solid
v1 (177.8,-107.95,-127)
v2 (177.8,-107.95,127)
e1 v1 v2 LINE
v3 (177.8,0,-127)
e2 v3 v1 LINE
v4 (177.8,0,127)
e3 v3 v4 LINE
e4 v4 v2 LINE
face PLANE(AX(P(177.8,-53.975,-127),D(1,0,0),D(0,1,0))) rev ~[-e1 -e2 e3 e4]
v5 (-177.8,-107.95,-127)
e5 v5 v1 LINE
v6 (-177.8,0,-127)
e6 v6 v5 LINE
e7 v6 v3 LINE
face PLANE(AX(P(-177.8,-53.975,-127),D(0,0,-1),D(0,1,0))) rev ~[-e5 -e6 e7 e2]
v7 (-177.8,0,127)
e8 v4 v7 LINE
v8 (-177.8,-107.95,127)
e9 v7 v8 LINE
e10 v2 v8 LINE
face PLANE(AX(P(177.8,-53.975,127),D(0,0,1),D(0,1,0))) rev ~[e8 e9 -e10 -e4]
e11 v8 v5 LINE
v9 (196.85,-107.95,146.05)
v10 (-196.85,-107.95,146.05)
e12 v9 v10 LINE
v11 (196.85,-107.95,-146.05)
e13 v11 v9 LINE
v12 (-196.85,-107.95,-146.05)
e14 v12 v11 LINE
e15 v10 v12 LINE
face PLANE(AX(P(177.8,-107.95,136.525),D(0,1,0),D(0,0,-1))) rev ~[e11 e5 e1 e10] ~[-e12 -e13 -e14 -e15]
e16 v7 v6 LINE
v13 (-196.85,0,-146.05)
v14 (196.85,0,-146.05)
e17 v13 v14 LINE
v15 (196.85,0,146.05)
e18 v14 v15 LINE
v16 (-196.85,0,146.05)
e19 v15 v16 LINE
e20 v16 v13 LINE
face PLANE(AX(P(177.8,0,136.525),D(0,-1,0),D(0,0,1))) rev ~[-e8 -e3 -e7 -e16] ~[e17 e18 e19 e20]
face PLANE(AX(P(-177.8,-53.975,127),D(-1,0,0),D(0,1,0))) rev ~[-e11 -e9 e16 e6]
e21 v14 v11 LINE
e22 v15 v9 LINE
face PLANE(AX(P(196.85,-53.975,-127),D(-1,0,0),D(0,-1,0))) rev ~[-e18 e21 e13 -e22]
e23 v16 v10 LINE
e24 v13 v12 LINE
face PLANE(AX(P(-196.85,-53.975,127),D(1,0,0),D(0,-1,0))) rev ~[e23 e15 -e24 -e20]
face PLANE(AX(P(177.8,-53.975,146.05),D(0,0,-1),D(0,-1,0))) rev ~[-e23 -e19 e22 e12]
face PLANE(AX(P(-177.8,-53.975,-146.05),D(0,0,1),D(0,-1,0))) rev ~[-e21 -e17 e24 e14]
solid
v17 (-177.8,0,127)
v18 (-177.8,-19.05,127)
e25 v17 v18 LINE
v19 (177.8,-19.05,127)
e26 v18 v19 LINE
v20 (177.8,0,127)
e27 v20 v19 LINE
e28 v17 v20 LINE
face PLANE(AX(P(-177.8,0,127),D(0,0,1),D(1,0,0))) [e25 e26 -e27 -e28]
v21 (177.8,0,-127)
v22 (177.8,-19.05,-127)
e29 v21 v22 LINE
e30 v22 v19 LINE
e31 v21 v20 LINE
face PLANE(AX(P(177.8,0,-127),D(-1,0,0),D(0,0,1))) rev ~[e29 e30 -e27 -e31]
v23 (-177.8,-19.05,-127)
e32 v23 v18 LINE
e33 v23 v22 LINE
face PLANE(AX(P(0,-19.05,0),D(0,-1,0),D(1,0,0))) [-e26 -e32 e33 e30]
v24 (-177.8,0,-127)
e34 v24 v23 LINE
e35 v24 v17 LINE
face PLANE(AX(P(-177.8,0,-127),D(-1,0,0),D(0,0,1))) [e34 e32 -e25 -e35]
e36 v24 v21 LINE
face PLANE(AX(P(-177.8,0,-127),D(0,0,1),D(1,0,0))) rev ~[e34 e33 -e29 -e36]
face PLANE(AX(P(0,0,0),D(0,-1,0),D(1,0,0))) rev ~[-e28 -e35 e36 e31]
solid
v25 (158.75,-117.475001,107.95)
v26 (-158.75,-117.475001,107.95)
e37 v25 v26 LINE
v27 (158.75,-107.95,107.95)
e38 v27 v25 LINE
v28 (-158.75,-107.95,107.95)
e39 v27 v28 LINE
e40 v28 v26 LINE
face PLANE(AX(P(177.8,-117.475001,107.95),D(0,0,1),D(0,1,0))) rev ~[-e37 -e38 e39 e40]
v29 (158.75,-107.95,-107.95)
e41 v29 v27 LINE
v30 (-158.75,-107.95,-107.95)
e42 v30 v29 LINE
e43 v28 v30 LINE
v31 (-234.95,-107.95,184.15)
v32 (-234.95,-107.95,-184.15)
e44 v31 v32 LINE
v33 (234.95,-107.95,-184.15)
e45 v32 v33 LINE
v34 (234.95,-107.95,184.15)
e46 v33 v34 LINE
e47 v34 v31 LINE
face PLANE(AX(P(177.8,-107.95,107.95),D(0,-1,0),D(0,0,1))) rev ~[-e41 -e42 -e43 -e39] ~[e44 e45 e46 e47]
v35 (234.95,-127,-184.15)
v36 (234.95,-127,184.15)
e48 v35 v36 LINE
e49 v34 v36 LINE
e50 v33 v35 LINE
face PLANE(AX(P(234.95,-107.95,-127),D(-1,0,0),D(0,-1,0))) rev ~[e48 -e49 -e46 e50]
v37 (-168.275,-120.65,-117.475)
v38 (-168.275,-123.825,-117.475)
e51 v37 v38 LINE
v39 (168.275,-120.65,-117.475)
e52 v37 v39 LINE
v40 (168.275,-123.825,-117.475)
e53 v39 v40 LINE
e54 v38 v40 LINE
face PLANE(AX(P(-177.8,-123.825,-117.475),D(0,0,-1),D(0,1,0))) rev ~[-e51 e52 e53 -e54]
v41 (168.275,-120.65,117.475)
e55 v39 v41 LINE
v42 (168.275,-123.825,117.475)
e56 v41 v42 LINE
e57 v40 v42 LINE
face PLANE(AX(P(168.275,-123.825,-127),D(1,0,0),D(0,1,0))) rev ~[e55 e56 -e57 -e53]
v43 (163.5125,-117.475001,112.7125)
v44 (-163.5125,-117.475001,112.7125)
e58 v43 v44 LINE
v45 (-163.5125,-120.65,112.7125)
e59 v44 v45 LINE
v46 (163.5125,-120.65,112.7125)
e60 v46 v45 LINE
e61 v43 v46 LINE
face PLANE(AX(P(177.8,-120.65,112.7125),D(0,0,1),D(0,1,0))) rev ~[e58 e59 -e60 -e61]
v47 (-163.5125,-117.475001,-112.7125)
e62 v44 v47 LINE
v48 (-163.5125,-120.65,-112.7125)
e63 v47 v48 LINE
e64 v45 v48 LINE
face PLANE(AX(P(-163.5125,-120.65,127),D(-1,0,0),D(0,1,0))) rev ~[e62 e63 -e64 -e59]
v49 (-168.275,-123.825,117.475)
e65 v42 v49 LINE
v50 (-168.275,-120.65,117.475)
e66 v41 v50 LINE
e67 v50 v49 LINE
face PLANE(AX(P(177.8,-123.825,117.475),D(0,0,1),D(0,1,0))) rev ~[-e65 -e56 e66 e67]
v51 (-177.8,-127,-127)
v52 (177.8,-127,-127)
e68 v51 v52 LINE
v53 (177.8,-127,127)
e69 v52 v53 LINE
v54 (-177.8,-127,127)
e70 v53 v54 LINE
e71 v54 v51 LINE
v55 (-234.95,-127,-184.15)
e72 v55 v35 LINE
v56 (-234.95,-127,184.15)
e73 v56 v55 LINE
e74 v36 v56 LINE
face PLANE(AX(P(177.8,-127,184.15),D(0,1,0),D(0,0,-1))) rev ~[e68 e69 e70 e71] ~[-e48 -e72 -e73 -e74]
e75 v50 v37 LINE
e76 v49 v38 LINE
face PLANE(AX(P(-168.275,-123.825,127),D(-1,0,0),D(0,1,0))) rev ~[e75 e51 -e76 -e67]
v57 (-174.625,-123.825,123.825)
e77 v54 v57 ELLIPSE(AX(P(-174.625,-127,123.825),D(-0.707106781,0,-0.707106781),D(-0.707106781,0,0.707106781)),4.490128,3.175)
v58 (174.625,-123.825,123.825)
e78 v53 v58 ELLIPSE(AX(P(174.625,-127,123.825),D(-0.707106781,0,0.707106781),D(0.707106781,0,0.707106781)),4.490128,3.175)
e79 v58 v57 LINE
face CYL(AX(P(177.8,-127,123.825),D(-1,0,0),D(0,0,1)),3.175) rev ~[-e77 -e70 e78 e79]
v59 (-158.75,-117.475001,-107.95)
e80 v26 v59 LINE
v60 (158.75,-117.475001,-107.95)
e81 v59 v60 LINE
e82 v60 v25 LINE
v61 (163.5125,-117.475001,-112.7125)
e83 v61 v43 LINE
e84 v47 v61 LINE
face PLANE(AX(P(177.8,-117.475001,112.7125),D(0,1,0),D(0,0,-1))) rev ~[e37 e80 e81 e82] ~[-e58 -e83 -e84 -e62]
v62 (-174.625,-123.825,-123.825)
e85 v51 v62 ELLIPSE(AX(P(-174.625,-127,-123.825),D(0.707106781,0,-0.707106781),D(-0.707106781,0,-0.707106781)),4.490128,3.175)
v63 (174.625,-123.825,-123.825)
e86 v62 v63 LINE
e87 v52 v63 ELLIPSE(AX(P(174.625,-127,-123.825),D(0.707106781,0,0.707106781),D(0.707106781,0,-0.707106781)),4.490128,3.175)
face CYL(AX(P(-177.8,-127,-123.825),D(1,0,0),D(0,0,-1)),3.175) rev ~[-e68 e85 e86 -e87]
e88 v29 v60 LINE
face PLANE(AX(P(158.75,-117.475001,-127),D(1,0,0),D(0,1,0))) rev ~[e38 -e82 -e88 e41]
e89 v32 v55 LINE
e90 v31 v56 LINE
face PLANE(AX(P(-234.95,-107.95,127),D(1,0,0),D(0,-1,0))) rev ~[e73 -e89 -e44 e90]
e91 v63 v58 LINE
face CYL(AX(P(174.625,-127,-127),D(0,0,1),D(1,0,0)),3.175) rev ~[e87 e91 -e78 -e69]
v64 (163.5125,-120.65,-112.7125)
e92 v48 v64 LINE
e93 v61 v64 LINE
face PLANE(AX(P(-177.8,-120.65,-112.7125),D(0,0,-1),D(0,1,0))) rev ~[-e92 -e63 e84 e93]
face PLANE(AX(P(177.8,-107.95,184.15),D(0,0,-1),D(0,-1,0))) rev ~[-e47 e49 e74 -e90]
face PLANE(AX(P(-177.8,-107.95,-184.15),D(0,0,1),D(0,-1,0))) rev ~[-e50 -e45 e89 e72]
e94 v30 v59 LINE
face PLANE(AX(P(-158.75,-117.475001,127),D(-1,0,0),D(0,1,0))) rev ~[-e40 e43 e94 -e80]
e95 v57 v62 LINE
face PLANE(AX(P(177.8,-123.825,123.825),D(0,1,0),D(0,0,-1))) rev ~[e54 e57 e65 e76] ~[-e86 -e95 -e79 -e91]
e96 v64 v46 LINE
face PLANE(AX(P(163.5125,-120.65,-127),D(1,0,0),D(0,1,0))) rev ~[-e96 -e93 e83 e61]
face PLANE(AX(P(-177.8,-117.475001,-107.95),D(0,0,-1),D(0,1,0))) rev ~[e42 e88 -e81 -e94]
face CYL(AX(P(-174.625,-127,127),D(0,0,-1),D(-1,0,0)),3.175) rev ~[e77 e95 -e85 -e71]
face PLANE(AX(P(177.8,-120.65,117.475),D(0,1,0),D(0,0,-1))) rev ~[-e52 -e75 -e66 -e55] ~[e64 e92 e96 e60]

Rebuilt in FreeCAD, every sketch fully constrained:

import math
import FreeCAD as App
import Part
import Sketcher

V = App.Vector
Q = App.Units.Quantity


def add_polygon(sketch, points):
    """Adds a closed chain of lines whose ends are joined by coincident constraints."""
    first, n = sketch.GeometryCount, len(points)
    for a, b in zip(points, points[1:] + points[:1]):
        sketch.addGeometry(Part.LineSegment(App.Vector(*a, 0), App.Vector(*b, 0)), False)
    for i in range(n):
        sketch.addConstraint(Sketcher.Constraint("Coincident", first + i, 2, first + (i + 1) % n, 1))

doc = App.newDocument("Part")
params = doc.addObject("Spreadsheet::Sheet", "Params")
for row, (alias, value) in enumerate([
    ("sketch1_width", "14 in"),
    ("sketch1_height", "10 in"),
    ("pad1_length", "0.75 in"),
    ("sketch2_width", "4.25 in"),
    ("sketch2_height", "0.75 in"),
    ("sketch3_width", "14 in"),
    ("sketch3_height", "10 in"),
    ("sketch4_height", "3 in"),
    ("sketch4_radius", "0.125 in"),
    ("sketch4_width", "0.75 in"),
    ("sketch4_height2", "2.25 in"),
    ("sketch4_height3", "0.25 in"),
    ("sketch5_width", "14 in"),
    ("sketch5_height", "10 in"),
], start=1):
    params.set(f"A{row}", alias)
    params.set(f"B{row}", "=" + value)
    params.setAlias(f"B{row}", alias)

body = doc.addObject("PartDesign::Body", "Body")

# Sketch on XZ plane
sketch1 = body.newObject("Sketcher::SketchObject", "Sketch")
sketch1.AttachmentSupport = (doc.getObject("XZ_Plane"), [""])
sketch1.MapMode = "FlatFace"
add_polygon(sketch1, [(-178, 127), (-178, -127), (178, -127), (178, 127)])  # lines 0-3
sketch1.addConstraint(Sketcher.Constraint("Vertical", 0))
sketch1.addConstraint(Sketcher.Constraint("Horizontal", 1))
sketch1.addConstraint(Sketcher.Constraint("Vertical", 2))
sketch1.addConstraint(Sketcher.Constraint("Horizontal", 3))
sketch1.addConstraint(Sketcher.Constraint("Symmetric", 0, 2, 2, 2, -1, 1))
sketch1.addConstraint(Sketcher.Constraint("DistanceX", 1, 1, 1, 2, Q("14 in")))
sketch1.addConstraint(Sketcher.Constraint("DistanceY", 0, 2, 0, 1, Q("10 in")))
sketch1.setExpression("Constraints[9]", "Params.sketch1_width")
sketch1.setExpression("Constraints[10]", "Params.sketch1_height")
pad1 = body.newObject("PartDesign::Pad", "Pad")
pad1.Profile = sketch1
pad1.setExpression("Length", "Params.pad1_length")
body2 = doc.addObject("PartDesign::Body", "Body001")

# Sketch on YZ plane
sketch2 = body2.newObject("Sketcher::SketchObject", "Sketch001")
sketch2.AttachmentSupport = (doc.getObject("YZ_Plane001"), [""])
sketch2.MapMode = "FlatFace"
add_polygon(sketch2, [(-108, 146), (-108, 127), (0, 127), (0, 146)])  # lines 0-3
sketch2.addConstraint(Sketcher.Constraint("Vertical", 0))
sketch2.addConstraint(Sketcher.Constraint("Horizontal", 1))
sketch2.addConstraint(Sketcher.Constraint("Vertical", 2))
sketch2.addConstraint(Sketcher.Constraint("Horizontal", 3))
sketch2.addConstraint(Sketcher.Constraint("PointOnObject", 1, 2, -2))
sketch2.addConstraint(Sketcher.Constraint("DistanceY", -1, 1, 0, 2, Q("5 in")))
sketch2.addConstraint(Sketcher.Constraint("DistanceX", 1, 1, 1, 2, Q("4.25 in")))
sketch2.addConstraint(Sketcher.Constraint("DistanceY", 0, 2, 0, 1, Q("0.75 in")))
sketch2.setExpression("Constraints[10]", "Params.sketch2_width")
sketch2.setExpression("Constraints[11]", "Params.sketch2_height")

# Sketch on XZ plane
sketch3 = body2.newObject("Sketcher::SketchObject", "Sketch002")
sketch3.AttachmentSupport = (doc.getObject("XZ_Plane001"), [""])
sketch3.MapMode = "FlatFace"
add_polygon(sketch3, [(178, 127), (-178, 127), (-178, -127), (178, -127)])  # lines 0-3
sketch3.addConstraint(Sketcher.Constraint("Horizontal", 0))
sketch3.addConstraint(Sketcher.Constraint("Vertical", 1))
sketch3.addConstraint(Sketcher.Constraint("Horizontal", 2))
sketch3.addConstraint(Sketcher.Constraint("Vertical", 3))
sketch3.addConstraint(Sketcher.Constraint("Symmetric", 0, 2, 2, 2, -1, 1))
sketch3.addConstraint(Sketcher.Constraint("DistanceX", 0, 2, 0, 1, Q("14 in")))
sketch3.addConstraint(Sketcher.Constraint("DistanceY", 1, 2, 1, 1, Q("10 in")))
sketch3.setExpression("Constraints[9]", "Params.sketch3_width")
sketch3.setExpression("Constraints[10]", "Params.sketch3_height")
doc.recompute()

additivepipe = body2.newObject("PartDesign::AdditivePipe", "AdditivePipe")
additivepipe.Profile = sketch2
additivepipe.Spine = (sketch3, ["Edge1", "Edge2", "Edge3", "Edge4"])
additivepipe.Transition = "Right corner"
body3 = doc.addObject("PartDesign::Body", "Body002")

# Sketch on YZ plane
sketch4 = body3.newObject("Sketcher::SketchObject", "Sketch003")
sketch4.AttachmentSupport = (doc.getObject("YZ_Plane002"), [""])
sketch4.MapMode = "FlatFace"
sketch4.addGeometry(Part.LineSegment(V(-108, 184.2, 0), V(-127, 184.2, 0)), False)
sketch4.addGeometry(Part.LineSegment(V(-127, 184.2, 0), V(-127, 127, 0)), False)
sketch4.addGeometry(Part.ArcOfCircle(Part.Circle(V(-127, 123.8, 0), V(0, 0, 1), 3.2), math.radians(0), math.radians(90)), False)
sketch4.addGeometry(Part.LineSegment(V(-123.8, 123.8, 0), V(-123.8, 117.5, 0)), False)
sketch4.addGeometry(Part.LineSegment(V(-123.8, 117.5, 0), V(-120.7, 117.5, 0)), False)
sketch4.addGeometry(Part.LineSegment(V(-120.7, 117.5, 0), V(-120.7, 112.7, 0)), False)
sketch4.addGeometry(Part.LineSegment(V(-120.7, 112.7, 0), V(-117.5, 112.7, 0)), False)
sketch4.addGeometry(Part.LineSegment(V(-117.5, 112.7, 0), V(-117.5, 108, 0)), False)
sketch4.addGeometry(Part.LineSegment(V(-117.5, 108, 0), V(-108, 108, 0)), False)
sketch4.addGeometry(Part.LineSegment(V(-108, 108, 0), V(-108, 184.2, 0)), False)
sketch4.addConstraint(Sketcher.Constraint("Coincident", 0, 2, 1, 1))
sketch4.addConstraint(Sketcher.Constraint("Coincident", 1, 2, 2, 2))
sketch4.addConstraint(Sketcher.Constraint("Tangent", 2, 1, 3, 1))
sketch4.addConstraint(Sketcher.Constraint("Coincident", 3, 2, 4, 1))
sketch4.addConstraint(Sketcher.Constraint("Coincident", 4, 2, 5, 1))
sketch4.addConstraint(Sketcher.Constraint("Coincident", 5, 2, 6, 1))
sketch4.addConstraint(Sketcher.Constraint("Coincident", 6, 2, 7, 1))
sketch4.addConstraint(Sketcher.Constraint("Coincident", 7, 2, 8, 1))
sketch4.addConstraint(Sketcher.Constraint("Coincident", 8, 2, 9, 1))
sketch4.addConstraint(Sketcher.Constraint("Coincident", 9, 2, 0, 1))
sketch4.addConstraint(Sketcher.Constraint("Horizontal", 0))
sketch4.addConstraint(Sketcher.Constraint("Vertical", 1))
sketch4.addConstraint(Sketcher.Constraint("Vertical", 3))
sketch4.addConstraint(Sketcher.Constraint("Horizontal", 4))
sketch4.addConstraint(Sketcher.Constraint("Vertical", 5))
sketch4.addConstraint(Sketcher.Constraint("Horizontal", 6))
sketch4.addConstraint(Sketcher.Constraint("Vertical", 7))
sketch4.addConstraint(Sketcher.Constraint("Horizontal", 8))
sketch4.addConstraint(Sketcher.Constraint("Vertical", 9))
sketch4.addConstraint(Sketcher.Constraint("Vertical", 2, 3, 0, 2))
sketch4.addConstraint(Sketcher.Constraint("Equal", 4, 6))
sketch4.addConstraint(Sketcher.Constraint("Equal", 5, 7))
sketch4.addConstraint(Sketcher.Constraint("DistanceY", 9, 1, 9, 2, Q("3 in")))
sketch4.addConstraint(Sketcher.Constraint("DistanceX", 2, 3, -1, 1, Q("5 in")))
sketch4.addConstraint(Sketcher.Constraint("DistanceY", -1, 1, 1, 2, Q("5 in")))
sketch4.addConstraint(Sketcher.Constraint("Radius", 2, Q("0.125 in")))
sketch4.addConstraint(Sketcher.Constraint("DistanceX", 0, 2, 0, 1, Q("0.75 in")))
sketch4.addConstraint(Sketcher.Constraint("DistanceY", 1, 2, 1, 1, Q("2.25 in")))
sketch4.addConstraint(Sketcher.Constraint("DistanceY", 3, 2, 3, 1, Q("0.25 in")))
sketch4.addConstraint(Sketcher.Constraint("DistanceX", 5, 2, 8, 2, Q("0.5 in")))
sketch4.setExpression("Constraints[22]", "Params.sketch4_height")
sketch4.setExpression("Constraints[25]", "Params.sketch4_radius")
sketch4.setExpression("Constraints[26]", "Params.sketch4_width")
sketch4.setExpression("Constraints[27]", "Params.sketch4_height2")
sketch4.setExpression("Constraints[28]", "Params.sketch4_height3")

# Sketch on XZ plane
sketch5 = body3.newObject("Sketcher::SketchObject", "Sketch004")
sketch5.AttachmentSupport = (doc.getObject("XZ_Plane002"), [""])
sketch5.MapMode = "FlatFace"
add_polygon(sketch5, [(178, 127), (-178, 127), (-178, -127), (178, -127)])  # lines 0-3
sketch5.addConstraint(Sketcher.Constraint("Horizontal", 0))
sketch5.addConstraint(Sketcher.Constraint("Vertical", 1))
sketch5.addConstraint(Sketcher.Constraint("Horizontal", 2))
sketch5.addConstraint(Sketcher.Constraint("Vertical", 3))
sketch5.addConstraint(Sketcher.Constraint("Symmetric", 0, 2, 2, 2, -1, 1))
sketch5.addConstraint(Sketcher.Constraint("DistanceX", 0, 2, 0, 1, Q("14 in")))
sketch5.addConstraint(Sketcher.Constraint("DistanceY", 1, 2, 1, 1, Q("10 in")))
sketch5.setExpression("Constraints[9]", "Params.sketch5_width")
sketch5.setExpression("Constraints[10]", "Params.sketch5_height")
doc.recompute()

additivepipe2 = body3.newObject("PartDesign::AdditivePipe", "AdditivePipe001")
additivepipe2.Profile = sketch4
additivepipe2.Spine = (sketch5, ["Edge1", "Edge2", "Edge3", "Edge4"])
additivepipe2.Transition = "Right corner"

doc.recompute()
